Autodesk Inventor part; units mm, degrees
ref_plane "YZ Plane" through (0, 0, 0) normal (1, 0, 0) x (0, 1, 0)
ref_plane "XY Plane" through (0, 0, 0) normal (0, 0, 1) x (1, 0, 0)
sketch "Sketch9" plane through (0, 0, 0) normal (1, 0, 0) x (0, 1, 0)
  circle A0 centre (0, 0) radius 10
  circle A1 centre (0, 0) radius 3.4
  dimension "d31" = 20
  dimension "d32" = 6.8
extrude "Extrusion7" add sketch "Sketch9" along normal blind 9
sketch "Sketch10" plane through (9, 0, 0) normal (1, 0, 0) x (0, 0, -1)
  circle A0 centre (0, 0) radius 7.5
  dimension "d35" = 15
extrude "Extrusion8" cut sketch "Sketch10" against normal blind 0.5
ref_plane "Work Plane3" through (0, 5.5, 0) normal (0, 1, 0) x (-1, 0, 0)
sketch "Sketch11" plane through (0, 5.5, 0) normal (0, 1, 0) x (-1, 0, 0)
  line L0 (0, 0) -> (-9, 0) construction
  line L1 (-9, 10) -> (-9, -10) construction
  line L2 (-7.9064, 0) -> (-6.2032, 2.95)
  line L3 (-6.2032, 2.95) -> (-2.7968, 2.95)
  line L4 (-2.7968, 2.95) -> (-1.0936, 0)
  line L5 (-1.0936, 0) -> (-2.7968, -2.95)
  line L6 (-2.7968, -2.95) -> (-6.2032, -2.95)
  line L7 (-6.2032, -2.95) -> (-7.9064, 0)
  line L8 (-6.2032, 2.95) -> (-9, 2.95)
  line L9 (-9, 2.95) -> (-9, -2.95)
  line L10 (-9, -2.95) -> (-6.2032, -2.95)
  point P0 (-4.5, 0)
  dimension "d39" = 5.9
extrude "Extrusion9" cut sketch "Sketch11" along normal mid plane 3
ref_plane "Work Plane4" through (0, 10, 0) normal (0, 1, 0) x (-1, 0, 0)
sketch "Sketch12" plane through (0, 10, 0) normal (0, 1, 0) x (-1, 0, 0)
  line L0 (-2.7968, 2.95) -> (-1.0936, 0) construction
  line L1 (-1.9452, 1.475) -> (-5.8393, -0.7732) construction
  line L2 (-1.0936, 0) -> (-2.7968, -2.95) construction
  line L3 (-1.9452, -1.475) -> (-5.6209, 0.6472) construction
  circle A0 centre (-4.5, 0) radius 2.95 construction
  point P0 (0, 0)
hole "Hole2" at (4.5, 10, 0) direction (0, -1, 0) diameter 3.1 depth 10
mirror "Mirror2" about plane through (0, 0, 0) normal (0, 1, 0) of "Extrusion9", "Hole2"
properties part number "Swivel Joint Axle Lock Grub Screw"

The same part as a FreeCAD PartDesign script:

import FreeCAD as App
import Part
import Sketcher
Q = App.Units.Quantity


def add_polygon(sketch, points):
    """Adds a closed chain of lines whose ends are joined by coincident constraints."""
    first, n = sketch.GeometryCount, len(points)
    for a, b in zip(points, points[1:] + points[:1]):
        sketch.addGeometry(Part.LineSegment(App.Vector(*a, 0), App.Vector(*b, 0)), False)
    for i in range(n):
        sketch.addConstraint(Sketcher.Constraint("Coincident", first + i, 2, first + (i + 1) % n, 1))

doc = App.newDocument("Part")
body = doc.addObject("PartDesign::Body", "Body")

# Sketch on YZ plane
sketch1 = body.newObject("Sketcher::SketchObject", "Sketch")
sketch1.AttachmentSupport = (doc.getObject("YZ_Plane"), [""])
sketch1.MapMode = "FlatFace"
sketch1.addGeometry([
    Part.Circle(App.Vector(0, 0, 0), App.Vector(0, 0, 1), 10),
    Part.Circle(App.Vector(0, 0, 0), App.Vector(0, 0, 1), 3.4),
], False)
sketch1.addConstraint([
    Sketcher.Constraint("Coincident", 0, 3, -1, 1),
    Sketcher.Constraint("Coincident", 1, 3, -1, 1),
    Sketcher.Constraint("Diameter", 0, 20.0),
    Sketcher.Constraint("Diameter", 1, 6.8),
])
pad1 = body.newObject("PartDesign::Pad", "Pad")
pad1.Profile = sketch1
pad1.Length = 9

# Sketch on YZ plane
sketch2 = body.newObject("Sketcher::SketchObject", "Sketch001")
sketch2.AttachmentSupport = (doc.getObject("YZ_Plane"), [""])
sketch2.MapMode = "FlatFace"
sketch2.AttachmentOffset = App.Placement(App.Vector(0, 0, 9), App.Rotation())
sketch2.addGeometry(Part.Circle(App.Vector(0, 0, 0), App.Vector(0, 0, 1), 7.5), False)
sketch2.addConstraint([
    Sketcher.Constraint("Coincident", 0, 3, -1, 1),
    Sketcher.Constraint("Diameter", 0, 15.0),
])
pocket1 = body.newObject("PartDesign::Pocket", "Pocket")
pocket1.Profile = sketch2
pocket1.Length = 0.5

# Sketch on XZ plane
sketch3 = body.newObject("Sketcher::SketchObject", "Sketch002")
sketch3.AttachmentSupport = (doc.getObject("XZ_Plane"), [""])
sketch3.MapMode = "FlatFace"
sketch3.AttachmentOffset = App.Placement(App.Vector(0, 0, -5.5), App.Rotation())
add_polygon(sketch3, [(9, -2.95), (2.7968, -2.95), (1.0936, 0), (2.7968, 2.95), (9, 2.95)])  # lines 0-4
sketch3.addConstraint([
    Sketcher.Constraint("Horizontal", 0),
    Sketcher.Constraint("Horizontal", 3),
    Sketcher.Constraint("Vertical", 4),
    Sketcher.Constraint("Symmetric", 0, 2, 2, 2, -1),
    Sketcher.Constraint("PointOnObject", 1, 2, -1),
    Sketcher.Constraint("DistanceY", 4, 2, 4, 1, 5.9),
    Sketcher.Constraint("Angle", 1, Q("120.0002 deg")),
    Sketcher.Constraint("DistanceX", -1, 1, 3, 2, 9.0),
    Sketcher.Constraint("DistanceX", 0, 2, 0, 1, 6.2032),
])
pocket2 = body.newObject("PartDesign::Pocket", "Pocket001")
pocket2.Profile = sketch3
pocket2.Length = 3
pocket2.Midplane = True

# Sketch on XZ plane
sketch4 = body.newObject("Sketcher::SketchObject", "Sketch003")
sketch4.AttachmentSupport = (doc.getObject("XZ_Plane"), [""])
sketch4.MapMode = "FlatFace"
sketch4.AttachmentOffset = App.Placement(App.Vector(0, 0, -10), App.Rotation())
sketch4.addGeometry(Part.Circle(App.Vector(4.5, 0, 0), App.Vector(0, 0, 1), 1.55), False)
sketch4.addConstraint([
    Sketcher.Constraint("PointOnObject", 0, 3, -1),
    Sketcher.Constraint("Diameter", 0, 3.1),
    Sketcher.Constraint("DistanceX", -1, 1, 0, 3, 4.5),
])
doc.recompute()
hole = body.newObject("PartDesign::Hole", "Hole")
hole.Profile = sketch4
hole.ThreadType = "None"
hole.Diameter = 3.1
hole.DepthType = "Dimension"
hole.Depth = 10
hole.DrillPoint = "Flat"
hole.Reversed = True
doc.recompute()

mirrored = body.newObject("PartDesign::Mirrored", "Mirrored")
mirrored.Originals = [pocket2, hole]
mirrored.MirrorPlane = (doc.getObject("XZ_Plane"), [""])
body.Tip = mirrored

doc.recompute()
